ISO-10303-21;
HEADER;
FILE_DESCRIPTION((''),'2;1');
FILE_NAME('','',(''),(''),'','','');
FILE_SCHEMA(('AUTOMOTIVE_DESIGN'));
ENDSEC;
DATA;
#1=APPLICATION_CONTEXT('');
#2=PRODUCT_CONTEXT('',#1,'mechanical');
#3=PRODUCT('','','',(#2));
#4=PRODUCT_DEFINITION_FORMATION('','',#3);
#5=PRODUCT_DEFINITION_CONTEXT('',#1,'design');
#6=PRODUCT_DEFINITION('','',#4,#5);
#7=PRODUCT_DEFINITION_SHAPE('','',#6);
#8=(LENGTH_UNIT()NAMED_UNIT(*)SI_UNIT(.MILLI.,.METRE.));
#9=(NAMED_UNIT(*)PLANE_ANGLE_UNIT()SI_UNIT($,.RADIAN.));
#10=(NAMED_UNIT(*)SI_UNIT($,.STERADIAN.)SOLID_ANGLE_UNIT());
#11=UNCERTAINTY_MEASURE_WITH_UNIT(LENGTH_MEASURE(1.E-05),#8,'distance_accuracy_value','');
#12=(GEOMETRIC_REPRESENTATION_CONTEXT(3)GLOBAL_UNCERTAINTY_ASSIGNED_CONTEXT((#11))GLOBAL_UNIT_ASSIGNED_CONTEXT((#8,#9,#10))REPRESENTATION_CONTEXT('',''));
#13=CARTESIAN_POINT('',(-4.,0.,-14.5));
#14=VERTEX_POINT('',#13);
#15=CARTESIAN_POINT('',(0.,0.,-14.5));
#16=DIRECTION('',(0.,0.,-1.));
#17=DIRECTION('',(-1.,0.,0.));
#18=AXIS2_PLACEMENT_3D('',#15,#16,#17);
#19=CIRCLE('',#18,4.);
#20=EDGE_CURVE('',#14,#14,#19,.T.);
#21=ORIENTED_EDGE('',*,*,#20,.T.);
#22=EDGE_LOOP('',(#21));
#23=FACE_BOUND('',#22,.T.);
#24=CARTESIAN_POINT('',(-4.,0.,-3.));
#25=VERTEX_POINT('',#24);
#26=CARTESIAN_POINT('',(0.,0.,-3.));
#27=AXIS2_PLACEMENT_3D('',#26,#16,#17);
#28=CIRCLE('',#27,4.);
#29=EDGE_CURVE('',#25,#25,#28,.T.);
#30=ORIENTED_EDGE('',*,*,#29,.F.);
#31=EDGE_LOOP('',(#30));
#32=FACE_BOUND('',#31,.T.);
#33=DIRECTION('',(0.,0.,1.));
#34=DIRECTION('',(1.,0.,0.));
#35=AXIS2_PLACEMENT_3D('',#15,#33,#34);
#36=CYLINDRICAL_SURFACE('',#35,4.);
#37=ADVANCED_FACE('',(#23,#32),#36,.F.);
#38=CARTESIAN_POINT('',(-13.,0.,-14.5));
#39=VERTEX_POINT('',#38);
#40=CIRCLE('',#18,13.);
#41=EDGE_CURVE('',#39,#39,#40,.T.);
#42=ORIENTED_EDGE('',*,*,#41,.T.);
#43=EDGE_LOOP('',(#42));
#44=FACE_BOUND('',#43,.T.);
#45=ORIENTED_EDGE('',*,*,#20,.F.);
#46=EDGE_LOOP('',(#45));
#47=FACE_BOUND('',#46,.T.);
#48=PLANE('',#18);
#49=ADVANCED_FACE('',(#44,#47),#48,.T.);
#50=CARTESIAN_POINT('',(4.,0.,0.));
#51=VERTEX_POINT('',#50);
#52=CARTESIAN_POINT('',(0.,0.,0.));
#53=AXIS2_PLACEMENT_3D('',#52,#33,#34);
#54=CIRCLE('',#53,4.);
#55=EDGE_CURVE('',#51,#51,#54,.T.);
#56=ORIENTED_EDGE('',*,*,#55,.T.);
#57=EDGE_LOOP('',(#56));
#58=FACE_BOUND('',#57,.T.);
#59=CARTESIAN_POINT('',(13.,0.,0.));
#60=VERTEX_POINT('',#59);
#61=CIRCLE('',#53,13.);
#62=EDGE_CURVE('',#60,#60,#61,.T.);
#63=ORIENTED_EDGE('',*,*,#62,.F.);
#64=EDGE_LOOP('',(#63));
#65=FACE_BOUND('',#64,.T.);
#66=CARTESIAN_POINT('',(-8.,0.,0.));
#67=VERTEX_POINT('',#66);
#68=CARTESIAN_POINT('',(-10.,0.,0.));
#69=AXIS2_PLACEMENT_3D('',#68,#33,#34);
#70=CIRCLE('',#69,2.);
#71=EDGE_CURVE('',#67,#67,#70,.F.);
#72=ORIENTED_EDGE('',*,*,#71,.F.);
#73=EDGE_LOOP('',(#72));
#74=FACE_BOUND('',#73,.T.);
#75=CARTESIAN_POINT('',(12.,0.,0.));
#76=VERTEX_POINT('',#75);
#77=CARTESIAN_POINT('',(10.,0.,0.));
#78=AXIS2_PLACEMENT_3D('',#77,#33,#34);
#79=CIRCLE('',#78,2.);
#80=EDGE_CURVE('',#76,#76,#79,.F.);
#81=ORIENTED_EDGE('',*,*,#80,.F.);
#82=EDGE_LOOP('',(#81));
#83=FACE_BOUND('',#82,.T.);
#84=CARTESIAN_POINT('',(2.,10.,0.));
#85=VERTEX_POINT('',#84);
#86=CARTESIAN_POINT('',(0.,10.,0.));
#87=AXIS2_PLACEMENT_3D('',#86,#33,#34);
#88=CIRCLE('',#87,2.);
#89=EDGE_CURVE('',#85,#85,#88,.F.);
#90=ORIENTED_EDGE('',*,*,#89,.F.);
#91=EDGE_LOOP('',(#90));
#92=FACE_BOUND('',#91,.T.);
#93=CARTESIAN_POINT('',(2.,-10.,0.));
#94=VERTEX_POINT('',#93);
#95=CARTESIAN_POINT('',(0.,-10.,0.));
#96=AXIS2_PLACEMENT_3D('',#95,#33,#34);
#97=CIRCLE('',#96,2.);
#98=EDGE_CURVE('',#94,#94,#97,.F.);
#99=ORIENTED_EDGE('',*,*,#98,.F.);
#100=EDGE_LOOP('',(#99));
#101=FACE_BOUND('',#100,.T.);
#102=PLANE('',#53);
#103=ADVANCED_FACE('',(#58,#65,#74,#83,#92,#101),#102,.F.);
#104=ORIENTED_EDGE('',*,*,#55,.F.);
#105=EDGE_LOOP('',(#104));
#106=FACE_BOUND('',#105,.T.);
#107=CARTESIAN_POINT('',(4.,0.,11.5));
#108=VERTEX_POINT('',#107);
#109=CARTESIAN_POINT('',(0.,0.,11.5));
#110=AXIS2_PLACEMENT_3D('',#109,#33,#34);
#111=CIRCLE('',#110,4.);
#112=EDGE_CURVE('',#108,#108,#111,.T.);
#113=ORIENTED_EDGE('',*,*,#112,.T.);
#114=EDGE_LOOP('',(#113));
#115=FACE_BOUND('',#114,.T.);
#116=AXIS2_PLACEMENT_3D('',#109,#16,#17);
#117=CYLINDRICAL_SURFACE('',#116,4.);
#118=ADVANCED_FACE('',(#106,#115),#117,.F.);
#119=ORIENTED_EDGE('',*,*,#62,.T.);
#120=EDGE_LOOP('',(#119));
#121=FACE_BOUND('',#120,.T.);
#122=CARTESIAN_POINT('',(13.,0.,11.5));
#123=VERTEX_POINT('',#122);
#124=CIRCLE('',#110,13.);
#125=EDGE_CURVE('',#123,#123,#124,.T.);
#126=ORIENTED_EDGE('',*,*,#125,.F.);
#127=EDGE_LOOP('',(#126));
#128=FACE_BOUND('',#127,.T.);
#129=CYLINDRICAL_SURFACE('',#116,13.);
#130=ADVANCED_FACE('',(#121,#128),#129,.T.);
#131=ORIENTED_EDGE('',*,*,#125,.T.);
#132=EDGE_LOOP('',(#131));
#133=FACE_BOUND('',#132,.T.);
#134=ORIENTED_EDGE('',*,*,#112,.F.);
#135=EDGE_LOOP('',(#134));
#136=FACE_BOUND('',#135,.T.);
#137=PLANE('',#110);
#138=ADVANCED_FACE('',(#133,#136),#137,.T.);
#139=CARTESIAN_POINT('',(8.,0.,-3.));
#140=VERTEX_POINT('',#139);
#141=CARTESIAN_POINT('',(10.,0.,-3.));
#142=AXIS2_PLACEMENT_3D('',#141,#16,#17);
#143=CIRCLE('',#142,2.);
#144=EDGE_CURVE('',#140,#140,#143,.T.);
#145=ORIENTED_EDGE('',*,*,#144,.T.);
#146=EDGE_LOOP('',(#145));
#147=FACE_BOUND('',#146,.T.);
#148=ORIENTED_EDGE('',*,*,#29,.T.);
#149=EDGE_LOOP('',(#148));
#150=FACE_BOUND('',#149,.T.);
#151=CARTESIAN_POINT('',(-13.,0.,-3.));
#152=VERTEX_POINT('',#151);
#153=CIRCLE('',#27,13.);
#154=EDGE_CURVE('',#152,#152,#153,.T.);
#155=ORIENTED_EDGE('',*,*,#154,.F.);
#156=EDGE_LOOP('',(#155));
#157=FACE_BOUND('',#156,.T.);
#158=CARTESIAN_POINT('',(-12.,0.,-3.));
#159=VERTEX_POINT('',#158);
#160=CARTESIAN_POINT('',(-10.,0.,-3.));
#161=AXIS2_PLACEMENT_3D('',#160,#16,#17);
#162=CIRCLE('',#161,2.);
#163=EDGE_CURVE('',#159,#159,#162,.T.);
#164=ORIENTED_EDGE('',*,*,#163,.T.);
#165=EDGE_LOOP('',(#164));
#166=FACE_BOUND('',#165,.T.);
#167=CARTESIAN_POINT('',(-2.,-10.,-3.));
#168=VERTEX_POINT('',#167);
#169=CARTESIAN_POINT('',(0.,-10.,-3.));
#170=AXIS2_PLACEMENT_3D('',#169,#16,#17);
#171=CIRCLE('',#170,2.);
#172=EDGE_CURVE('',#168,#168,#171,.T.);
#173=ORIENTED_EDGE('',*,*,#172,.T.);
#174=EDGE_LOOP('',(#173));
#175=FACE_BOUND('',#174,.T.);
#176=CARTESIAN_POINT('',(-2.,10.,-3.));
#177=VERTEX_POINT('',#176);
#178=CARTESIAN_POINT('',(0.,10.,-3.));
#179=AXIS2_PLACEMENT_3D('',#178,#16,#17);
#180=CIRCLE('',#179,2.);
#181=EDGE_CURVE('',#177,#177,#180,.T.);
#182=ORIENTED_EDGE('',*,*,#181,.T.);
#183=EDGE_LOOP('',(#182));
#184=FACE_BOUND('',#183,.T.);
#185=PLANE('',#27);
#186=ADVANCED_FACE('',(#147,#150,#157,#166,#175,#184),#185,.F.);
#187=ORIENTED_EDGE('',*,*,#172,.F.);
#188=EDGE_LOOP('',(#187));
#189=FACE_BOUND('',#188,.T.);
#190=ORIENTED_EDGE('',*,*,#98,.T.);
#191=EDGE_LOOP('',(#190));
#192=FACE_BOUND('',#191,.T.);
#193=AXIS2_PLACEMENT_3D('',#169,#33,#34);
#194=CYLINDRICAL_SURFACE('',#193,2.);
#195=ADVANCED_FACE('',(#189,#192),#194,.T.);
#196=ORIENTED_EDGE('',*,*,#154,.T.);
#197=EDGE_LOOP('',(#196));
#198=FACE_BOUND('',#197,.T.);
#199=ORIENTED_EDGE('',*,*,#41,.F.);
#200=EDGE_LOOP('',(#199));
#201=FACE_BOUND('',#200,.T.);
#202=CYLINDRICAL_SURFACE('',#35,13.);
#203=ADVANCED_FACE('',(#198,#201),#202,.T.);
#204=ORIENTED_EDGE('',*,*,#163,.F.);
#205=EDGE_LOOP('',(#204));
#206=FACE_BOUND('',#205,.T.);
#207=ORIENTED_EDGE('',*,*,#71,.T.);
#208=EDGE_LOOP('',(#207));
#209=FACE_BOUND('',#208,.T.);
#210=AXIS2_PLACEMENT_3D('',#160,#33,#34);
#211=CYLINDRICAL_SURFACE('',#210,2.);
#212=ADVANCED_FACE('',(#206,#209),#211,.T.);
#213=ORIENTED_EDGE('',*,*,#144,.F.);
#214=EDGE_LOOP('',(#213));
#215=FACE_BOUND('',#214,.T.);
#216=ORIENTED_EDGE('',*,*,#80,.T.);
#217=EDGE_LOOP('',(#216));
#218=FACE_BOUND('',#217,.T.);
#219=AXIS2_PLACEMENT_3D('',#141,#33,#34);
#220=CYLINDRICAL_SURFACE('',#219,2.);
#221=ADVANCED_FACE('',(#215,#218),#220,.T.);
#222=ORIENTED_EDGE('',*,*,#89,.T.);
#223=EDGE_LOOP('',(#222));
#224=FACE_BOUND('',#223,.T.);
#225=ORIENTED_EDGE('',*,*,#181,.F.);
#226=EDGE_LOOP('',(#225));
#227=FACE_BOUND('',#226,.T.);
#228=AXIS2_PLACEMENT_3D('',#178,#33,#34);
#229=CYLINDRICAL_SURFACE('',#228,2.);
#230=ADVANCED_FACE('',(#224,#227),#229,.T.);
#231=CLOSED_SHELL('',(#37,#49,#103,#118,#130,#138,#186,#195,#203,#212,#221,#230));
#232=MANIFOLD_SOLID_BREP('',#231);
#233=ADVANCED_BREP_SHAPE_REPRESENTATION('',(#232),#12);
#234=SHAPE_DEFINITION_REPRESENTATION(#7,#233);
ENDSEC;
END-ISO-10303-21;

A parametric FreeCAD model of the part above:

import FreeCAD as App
import Part
import Sketcher
Q = App.Units.Quantity

doc = App.newDocument("Part")
body = doc.addObject("PartDesign::Body", "Body")

sketch1 = doc.addObject("Sketcher::SketchObject", "Sketch")
body.addObject(sketch1)
sketch1.AttachmentSupport = (doc.XY_Plane, [""])
sketch1.MapMode = "FlatFace"
sketch1.addGeometry([
    Part.Circle(App.Vector(0, 0, 0), App.Vector(0, 0, 1), 13),
    Part.Circle(App.Vector(0, 0, 0), App.Vector(0, 0, 1), 4),
], False)
sketch1.addConstraint([
    Sketcher.Constraint("Coincident", 0, 3, -1, 1),
    Sketcher.Constraint("Coincident", 1, 3, -1, 1),
    Sketcher.Constraint("Diameter", 0, Q("26 mm")),
    Sketcher.Constraint("Diameter", 1, Q("8 mm")),
])
pad1 = doc.addObject("PartDesign::Pad", "Pad")
body.addObject(pad1)
pad1.Profile = sketch1
pad1.Length = 11.5

sketch2 = doc.addObject("Sketcher::SketchObject", "Sketch001")
body.addObject(sketch2)
sketch2.AttachmentSupport = (doc.XY_Plane, [""])
sketch2.MapMode = "FlatFace"
sketch2.addGeometry([
    Part.Circle(App.Vector(0, 10, 0), App.Vector(0, 0, 1), 2),
    Part.Circle(App.Vector(-10, 0, 0), App.Vector(0, 0, 1), 2),
    Part.Circle(App.Vector(0, -10, 0), App.Vector(0, 0, 1), 2),
    Part.Circle(App.Vector(10, 0, 0), App.Vector(0, 0, 1), 2),
], False)
sketch2.addConstraint([
    Sketcher.Constraint("Equal", 0, 1),
    Sketcher.Constraint("Equal", 1, 2),
    Sketcher.Constraint("Equal", 2, 3),
    Sketcher.Constraint("Symmetric", 0, 3, 2, 3, -1, 1),
    Sketcher.Constraint("Symmetric", 1, 3, 3, 3, -1, 1),
    Sketcher.Constraint("PointOnObject", 0, 3, -2),
    Sketcher.Constraint("PointOnObject", 1, 3, -1),
    Sketcher.Constraint("Diameter", 0, Q("4 mm")),
    Sketcher.Constraint("DistanceY", -1, 1, 0, 3, Q("10 mm")),
    Sketcher.Constraint("DistanceX", 1, 3, -1, 1, Q("10 mm")),
])
pad2 = doc.addObject("PartDesign::Pad", "Pad001")
body.addObject(pad2)
pad2.Profile = sketch2
pad2.Length = 3
pad2.Reversed = True

sketch3 = doc.addObject("Sketcher::SketchObject", "Sketch002")
body.addObject(sketch3)
sketch3.AttachmentSupport = (doc.XY_Plane, [""])
sketch3.MapMode = "FlatFace"
sketch3.AttachmentOffset = App.Placement(App.Vector(0, 0, -3), App.Rotation())
sketch3.addGeometry([
    Part.Circle(App.Vector(0, 0, 0), App.Vector(0, 0, 1), 13),
    Part.Circle(App.Vector(0, 0, 0), App.Vector(0, 0, 1), 4),
], False)
sketch3.addConstraint([
    Sketcher.Constraint("Coincident", 0, 3, -1, 1),
    Sketcher.Constraint("Coincident", 1, 3, -1, 1),
    Sketcher.Constraint("Diameter", 0, Q("26 mm")),
    Sketcher.Constraint("Diameter", 1, Q("8 mm")),
])
pad3 = doc.addObject("PartDesign::Pad", "Pad002")
body.addObject(pad3)
pad3.Profile = sketch3
pad3.Length = 11.5
pad3.Reversed = True

doc.recompute()
